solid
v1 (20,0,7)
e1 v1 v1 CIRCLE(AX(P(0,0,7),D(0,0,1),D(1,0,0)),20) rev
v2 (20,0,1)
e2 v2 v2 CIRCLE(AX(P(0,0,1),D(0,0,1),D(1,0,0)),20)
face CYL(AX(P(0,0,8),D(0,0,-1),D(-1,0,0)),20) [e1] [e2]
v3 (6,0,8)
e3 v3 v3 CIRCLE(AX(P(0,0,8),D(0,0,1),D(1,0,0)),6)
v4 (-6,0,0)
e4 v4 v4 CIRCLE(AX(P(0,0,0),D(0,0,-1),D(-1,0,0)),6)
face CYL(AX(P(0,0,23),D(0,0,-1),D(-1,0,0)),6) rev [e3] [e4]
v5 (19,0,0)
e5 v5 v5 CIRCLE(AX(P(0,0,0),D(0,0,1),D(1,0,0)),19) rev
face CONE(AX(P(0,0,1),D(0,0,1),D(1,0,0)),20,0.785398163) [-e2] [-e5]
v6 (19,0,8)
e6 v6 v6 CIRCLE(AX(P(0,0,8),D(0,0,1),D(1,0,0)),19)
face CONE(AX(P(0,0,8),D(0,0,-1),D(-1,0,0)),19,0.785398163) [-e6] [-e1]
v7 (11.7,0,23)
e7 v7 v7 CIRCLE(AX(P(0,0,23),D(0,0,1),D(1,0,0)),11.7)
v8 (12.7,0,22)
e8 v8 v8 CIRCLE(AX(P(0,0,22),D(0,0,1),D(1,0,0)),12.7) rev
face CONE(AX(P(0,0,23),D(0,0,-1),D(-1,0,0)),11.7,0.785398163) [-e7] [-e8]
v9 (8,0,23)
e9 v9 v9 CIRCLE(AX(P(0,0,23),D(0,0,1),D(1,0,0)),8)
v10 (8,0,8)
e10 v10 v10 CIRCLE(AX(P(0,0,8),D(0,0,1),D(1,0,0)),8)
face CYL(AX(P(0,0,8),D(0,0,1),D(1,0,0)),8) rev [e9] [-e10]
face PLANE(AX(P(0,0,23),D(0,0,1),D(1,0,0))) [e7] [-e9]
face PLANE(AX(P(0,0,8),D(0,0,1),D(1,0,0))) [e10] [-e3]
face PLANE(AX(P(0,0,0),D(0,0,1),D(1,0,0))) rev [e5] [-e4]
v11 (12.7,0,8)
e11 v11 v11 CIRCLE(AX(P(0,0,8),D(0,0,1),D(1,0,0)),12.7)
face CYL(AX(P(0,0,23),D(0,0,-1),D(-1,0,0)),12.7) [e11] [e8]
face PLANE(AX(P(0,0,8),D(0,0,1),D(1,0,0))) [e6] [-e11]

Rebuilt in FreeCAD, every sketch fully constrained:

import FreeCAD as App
import Part
import Sketcher
Q = App.Units.Quantity


def edges_at(feature, points):
    """Names of the edges that pass closest to the given points."""
    edges = feature.Shape.Edges
    near = lambda p: min(range(len(edges)), key=lambda i: edges[i].distToShape(Part.Vertex(*p))[0])
    return sorted({f"Edge{near(p) + 1}" for p in points})

doc = App.newDocument("Part")
params = doc.addObject("Spreadsheet::Sheet", "Params")
for row, (alias, value) in enumerate([
    ("sketch1_diameter", "40 mm"),
    ("pad1_length", "8 mm"),
    ("sketch2_diameter", "25.4 mm"),
    ("pad2_length", "15 mm"),
    ("chamfer_size", "1 mm"),
    ("sketch3_diameter", "16 mm"),
    ("pocket1_length", "15 mm"),
    ("sketch4_diameter", "12 mm"),
    ("chamfer2_size", "1 mm"),
], start=1):
    params.set(f"A{row}", alias)
    params.set(f"B{row}", "=" + value)
    params.setAlias(f"B{row}", alias)

body = doc.addObject("PartDesign::Body", "Body")

sketch1 = body.newObject("Sketcher::SketchObject", "Sketch")
sketch1.AttachmentSupport = (doc.getObject("XY_Plane"), [""])
sketch1.MapMode = "FlatFace"
sketch1.addGeometry(Part.Circle(App.Vector(0, 0, 0), App.Vector(0, 0, 1), 20), False)
sketch1.addConstraint([
    Sketcher.Constraint("Coincident", 0, 3, -1, 1),
    Sketcher.Constraint("Diameter", 0, Q("40 mm")),
])
sketch1.setExpression("Constraints[1]", "Params.sketch1_diameter")
pad1 = body.newObject("PartDesign::Pad", "Pad")
pad1.Profile = sketch1
pad1.setExpression("Length", "Params.pad1_length")

sketch2 = body.newObject("Sketcher::SketchObject", "Sketch001")
sketch2.AttachmentSupport = (doc.getObject("XY_Plane"), [""])
sketch2.MapMode = "FlatFace"
sketch2.AttachmentOffset = App.Placement(App.Vector(0, 0, 8), App.Rotation())
sketch2.addGeometry(Part.Circle(App.Vector(0, 0, 0), App.Vector(0, 0, 1), 13), False)
sketch2.addConstraint([
    Sketcher.Constraint("Coincident", 0, 3, -1, 1),
    Sketcher.Constraint("Diameter", 0, Q("25.4 mm")),
])
sketch2.setExpression("Constraints[1]", "Params.sketch2_diameter")
pad2 = body.newObject("PartDesign::Pad", "Pad001")
pad2.Profile = sketch2
pad2.setExpression("Length", "Params.pad2_length")
doc.recompute()

chamfer = body.newObject("PartDesign::Chamfer", "Chamfer")
chamfer.Base = (pad2, edges_at(pad2, [(-12.7, 0, 23)]))
chamfer.setExpression("Size", "Params.chamfer_size")

sketch3 = body.newObject("Sketcher::SketchObject", "Sketch002")
sketch3.AttachmentSupport = (doc.getObject("XY_Plane"), [""])
sketch3.MapMode = "FlatFace"
sketch3.AttachmentOffset = App.Placement(App.Vector(0, 0, 23), App.Rotation())
sketch3.addGeometry(Part.Circle(App.Vector(0, 0, 0), App.Vector(0, 0, 1), 8), False)
sketch3.addConstraint([
    Sketcher.Constraint("Coincident", 0, 3, -1, 1),
    Sketcher.Constraint("Diameter", 0, Q("16 mm")),
])
sketch3.setExpression("Constraints[1]", "Params.sketch3_diameter")
pocket1 = body.newObject("PartDesign::Pocket", "Pocket")
pocket1.Profile = sketch3
pocket1.setExpression("Length", "Params.pocket1_length")

sketch4 = body.newObject("Sketcher::SketchObject", "Sketch003")
sketch4.AttachmentSupport = (doc.getObject("XY_Plane"), [""])
sketch4.MapMode = "FlatFace"
sketch4.addGeometry(Part.Circle(App.Vector(0, 0, 0), App.Vector(0, 0, 1), 6), False)
sketch4.addConstraint([
    Sketcher.Constraint("Coincident", 0, 3, -1, 1),
    Sketcher.Constraint("Diameter", 0, Q("12 mm")),
])
sketch4.setExpression("Constraints[1]", "Params.sketch4_diameter")
pocket2 = body.newObject("PartDesign::Pocket", "Pocket001")
pocket2.Profile = sketch4
pocket2.Type = "ThroughAll"
pocket2.Reversed = True
doc.recompute()

chamfer2 = body.newObject("PartDesign::Chamfer", "Chamfer001")
chamfer2.Base = (pocket2, edges_at(pocket2, [(-20, 0, 0), (-20, 0, 8)]))
chamfer2.setExpression("Size", "Params.chamfer2_size")

doc.recompute()
